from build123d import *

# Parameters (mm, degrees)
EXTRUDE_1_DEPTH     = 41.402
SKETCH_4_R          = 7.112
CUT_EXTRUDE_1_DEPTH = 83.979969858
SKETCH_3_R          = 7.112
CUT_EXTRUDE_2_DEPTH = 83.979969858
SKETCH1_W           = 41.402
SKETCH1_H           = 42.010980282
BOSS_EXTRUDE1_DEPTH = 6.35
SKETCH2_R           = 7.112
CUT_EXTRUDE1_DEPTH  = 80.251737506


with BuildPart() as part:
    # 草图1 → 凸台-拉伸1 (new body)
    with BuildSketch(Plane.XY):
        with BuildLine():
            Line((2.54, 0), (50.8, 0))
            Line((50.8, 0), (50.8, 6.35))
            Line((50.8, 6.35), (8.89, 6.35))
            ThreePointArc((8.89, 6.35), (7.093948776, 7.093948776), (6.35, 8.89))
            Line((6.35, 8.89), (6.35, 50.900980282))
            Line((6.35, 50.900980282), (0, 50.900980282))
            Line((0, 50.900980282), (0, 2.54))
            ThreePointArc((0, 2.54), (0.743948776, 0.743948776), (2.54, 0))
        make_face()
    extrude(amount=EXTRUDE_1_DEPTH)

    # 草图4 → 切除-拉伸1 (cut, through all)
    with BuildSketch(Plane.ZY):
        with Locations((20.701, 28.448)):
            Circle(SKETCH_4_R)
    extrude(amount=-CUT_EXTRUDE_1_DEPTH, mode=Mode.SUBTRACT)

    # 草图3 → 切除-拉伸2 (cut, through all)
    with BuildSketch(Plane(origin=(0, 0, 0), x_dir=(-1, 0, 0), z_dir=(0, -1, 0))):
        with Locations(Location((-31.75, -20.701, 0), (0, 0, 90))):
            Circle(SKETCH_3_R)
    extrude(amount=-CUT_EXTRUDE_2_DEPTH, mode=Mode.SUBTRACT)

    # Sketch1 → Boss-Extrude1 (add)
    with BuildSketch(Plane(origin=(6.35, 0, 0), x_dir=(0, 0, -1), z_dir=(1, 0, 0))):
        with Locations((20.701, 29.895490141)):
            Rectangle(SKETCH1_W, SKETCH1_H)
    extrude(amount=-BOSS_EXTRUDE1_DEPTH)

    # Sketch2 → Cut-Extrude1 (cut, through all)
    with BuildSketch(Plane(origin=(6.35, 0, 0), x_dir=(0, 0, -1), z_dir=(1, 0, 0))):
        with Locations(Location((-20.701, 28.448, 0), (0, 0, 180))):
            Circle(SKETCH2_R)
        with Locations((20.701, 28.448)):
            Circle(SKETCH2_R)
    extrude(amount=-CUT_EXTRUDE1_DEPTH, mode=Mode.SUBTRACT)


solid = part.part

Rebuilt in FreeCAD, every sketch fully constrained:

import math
import FreeCAD as App
import Part
import Sketcher
from FreeCAD import Vector
Q = App.Units.Quantity

doc = App.newDocument("Part")
body = doc.addObject("PartDesign::Body", "Body")

# Sketch on XY plane
sketch1 = doc.addObject("Sketcher::SketchObject", "Sketch")
body.addObject(sketch1)
sketch1.AttachmentSupport = (doc.XY_Plane, [""])
sketch1.MapMode = "FlatFace"
sketch1.addGeometry([
    Part.LineSegment(Vector(2.54, 0, 0), Vector(50.8, 0, 0)),  # 0
    Part.LineSegment(Vector(50.8, 0, 0), Vector(50.8, 6.35, 0)),  # 1
    Part.LineSegment(Vector(50.8, 6.35, 0), Vector(8.89, 6.35, 0)),  # 2
    Part.ArcOfCircle(Part.Circle(Vector(8.89, 8.89, 0), Vector(0, 0, 1), 2.54), math.radians(-180), math.radians(-90)),  # 3
    Part.LineSegment(Vector(6.35, 8.89, 0), Vector(6.35, 50.90098, 0)),  # 4
    Part.LineSegment(Vector(6.35, 50.90098, 0), Vector(0, 50.90098, 0)),  # 5
    Part.LineSegment(Vector(0, 50.90098, 0), Vector(0, 2.54, 0)),  # 6
    Part.ArcOfCircle(Part.Circle(Vector(2.54, 2.54, 0), Vector(0, 0, 1), 2.54), math.radians(-180), math.radians(-90)),  # 7
], False)
sketch1.addConstraint([
    Sketcher.Constraint("Coincident", 0, 2, 1, 1),
    Sketcher.Constraint("Coincident", 1, 2, 2, 1),
    Sketcher.Constraint("Tangent", 2, 2, 3, 2),
    Sketcher.Constraint("Tangent", 3, 1, 4, 1),
    Sketcher.Constraint("Coincident", 4, 2, 5, 1),
    Sketcher.Constraint("Coincident", 5, 2, 6, 1),
    Sketcher.Constraint("Tangent", 6, 2, 7, 1),
    Sketcher.Constraint("Tangent", 7, 2, 0, 1),
    Sketcher.Constraint("Horizontal", 0),
    Sketcher.Constraint("Vertical", 1),
    Sketcher.Constraint("Horizontal", 2),
    Sketcher.Constraint("Vertical", 4),
    Sketcher.Constraint("Horizontal", 5),
    Sketcher.Constraint("Vertical", 6),
    Sketcher.Constraint("Equal", 3, 7),
    Sketcher.Constraint("PointOnObject", 0, 2, -1),
    Sketcher.Constraint("PointOnObject", 5, 2, -2),
    Sketcher.Constraint("Equal", 5, 1),
    Sketcher.Constraint("Radius", 3, Q("0.1 in")),
    Sketcher.Constraint("DistanceX", 0, 1, 0, 2, Q("1.9 in")),
    Sketcher.Constraint("DistanceX", 2, 2, 2, 1, Q("1.65 in")),
    Sketcher.Constraint("DistanceY", 4, 1, 4, 2, Q("42.01098 mm")),
])
pad1 = doc.addObject("PartDesign::Pad", "Pad")
body.addObject(pad1)
pad1.Profile = sketch1
pad1.Length = Q("1.63 in")

# Sketch on YZ plane
sketch2 = doc.addObject("Sketcher::SketchObject", "Sketch001")
body.addObject(sketch2)
sketch2.AttachmentSupport = (doc.YZ_Plane, [""])
sketch2.MapMode = "FlatFace"
sketch2.addGeometry(Part.Circle(Vector(28.448, 20.701, 0), Vector(0, 0, 1), 7.112), False)
sketch2.addConstraint([
    Sketcher.Constraint("Diameter", 0, Q("0.56 in")),
    Sketcher.Constraint("DistanceX", -1, 1, 0, 3, Q("1.12 in")),
    Sketcher.Constraint("DistanceY", -1, 1, 0, 3, Q("0.815 in")),
])
pocket1 = doc.addObject("PartDesign::Pocket", "Pocket")
body.addObject(pocket1)
pocket1.Profile = sketch2
pocket1.Type = "ThroughAll"
pocket1.Reversed = True

# Sketch on XZ plane
sketch3 = doc.addObject("Sketcher::SketchObject", "Sketch002")
body.addObject(sketch3)
sketch3.AttachmentSupport = (doc.XZ_Plane, [""])
sketch3.MapMode = "FlatFace"
sketch3.addGeometry(Part.Circle(Vector(31.75, 20.701, 0), Vector(0, 0, 1), 7.112), False)
sketch3.addConstraint([
    Sketcher.Constraint("Diameter", 0, Q("0.56 in")),
    Sketcher.Constraint("DistanceX", -1, 1, 0, 3, Q("1.25 in")),
    Sketcher.Constraint("DistanceY", -1, 1, 0, 3, Q("0.815 in")),
])
pocket2 = doc.addObject("PartDesign::Pocket", "Pocket001")
body.addObject(pocket2)
pocket2.Profile = sketch3
pocket2.Type = "ThroughAll"

# Sketch on YZ plane
sketch4 = doc.addObject("Sketcher::SketchObject", "Sketch003")
body.addObject(sketch4)
sketch4.AttachmentSupport = (doc.YZ_Plane, [""])
sketch4.MapMode = "FlatFace"
sketch4.AttachmentOffset = App.Placement(Vector(0, 0, 0.25 * 25.4), App.Rotation())
sketch4.addGeometry([
    Part.LineSegment(Vector(50.90098, 0, 0), Vector(8.89, 0, 0)),
    Part.LineSegment(Vector(8.89, 0, 0), Vector(8.89, -41.402, 0)),
    Part.LineSegment(Vector(8.89, -41.402, 0), Vector(50.90098, -41.402, 0)),
    Part.LineSegment(Vector(50.90098, -41.402, 0), Vector(50.90098, 0, 0)),
], False)
sketch4.addConstraint([
    Sketcher.Constraint("Coincident", 0, 2, 1, 1),
    Sketcher.Constraint("Coincident", 1, 2, 2, 1),
    Sketcher.Constraint("Coincident", 2, 2, 3, 1),
    Sketcher.Constraint("Coincident", 3, 2, 0, 1),
    Sketcher.Constraint("Horizontal", 0),
    Sketcher.Constraint("Vertical", 1),
    Sketcher.Constraint("Horizontal", 2),
    Sketcher.Constraint("Vertical", 3),
    Sketcher.Constraint("PointOnObject", 0, 2, -1),
    Sketcher.Constraint("DistanceY", 1, 2, 1, 1, Q("1.63 in")),
    Sketcher.Constraint("DistanceX", -1, 1, 0, 2, Q("0.35 in")),
    Sketcher.Constraint("DistanceX", 0, 2, 0, 1, Q("42.01098 mm")),
])
pad2 = doc.addObject("PartDesign::Pad", "Pad001")
body.addObject(pad2)
pad2.Profile = sketch4
pad2.Length = Q("0.25 in")
pad2.Reversed = True

# Sketch on YZ plane
sketch5 = doc.addObject("Sketcher::SketchObject", "Sketch004")
body.addObject(sketch5)
sketch5.AttachmentSupport = (doc.YZ_Plane, [""])
sketch5.MapMode = "FlatFace"
sketch5.AttachmentOffset = App.Placement(Vector(0, 0, 0.25 * 25.4), App.Rotation())
sketch5.addGeometry([
    Part.Circle(Vector(28.448, 20.701, 0), Vector(0, 0, 1), 7.112),
    Part.Circle(Vector(28.448, -20.701, 0), Vector(0, 0, 1), 7.112),
], False)
sketch5.addConstraint([
    Sketcher.Constraint("Equal", 0, 1),
    Sketcher.Constraint("Symmetric", 0, 3, 1, 3, -1),
    Sketcher.Constraint("Diameter", 0, Q("0.56 in")),
    Sketcher.Constraint("DistanceX", -1, 1, 0, 3, Q("1.12 in")),
    Sketcher.Constraint("DistanceY", 1, 3, 0, 3, Q("1.63 in")),
])
pocket3 = doc.addObject("PartDesign::Pocket", "Pocket002")
body.addObject(pocket3)
pocket3.Profile = sketch5
pocket3.Type = "ThroughAll"

doc.recompute()
